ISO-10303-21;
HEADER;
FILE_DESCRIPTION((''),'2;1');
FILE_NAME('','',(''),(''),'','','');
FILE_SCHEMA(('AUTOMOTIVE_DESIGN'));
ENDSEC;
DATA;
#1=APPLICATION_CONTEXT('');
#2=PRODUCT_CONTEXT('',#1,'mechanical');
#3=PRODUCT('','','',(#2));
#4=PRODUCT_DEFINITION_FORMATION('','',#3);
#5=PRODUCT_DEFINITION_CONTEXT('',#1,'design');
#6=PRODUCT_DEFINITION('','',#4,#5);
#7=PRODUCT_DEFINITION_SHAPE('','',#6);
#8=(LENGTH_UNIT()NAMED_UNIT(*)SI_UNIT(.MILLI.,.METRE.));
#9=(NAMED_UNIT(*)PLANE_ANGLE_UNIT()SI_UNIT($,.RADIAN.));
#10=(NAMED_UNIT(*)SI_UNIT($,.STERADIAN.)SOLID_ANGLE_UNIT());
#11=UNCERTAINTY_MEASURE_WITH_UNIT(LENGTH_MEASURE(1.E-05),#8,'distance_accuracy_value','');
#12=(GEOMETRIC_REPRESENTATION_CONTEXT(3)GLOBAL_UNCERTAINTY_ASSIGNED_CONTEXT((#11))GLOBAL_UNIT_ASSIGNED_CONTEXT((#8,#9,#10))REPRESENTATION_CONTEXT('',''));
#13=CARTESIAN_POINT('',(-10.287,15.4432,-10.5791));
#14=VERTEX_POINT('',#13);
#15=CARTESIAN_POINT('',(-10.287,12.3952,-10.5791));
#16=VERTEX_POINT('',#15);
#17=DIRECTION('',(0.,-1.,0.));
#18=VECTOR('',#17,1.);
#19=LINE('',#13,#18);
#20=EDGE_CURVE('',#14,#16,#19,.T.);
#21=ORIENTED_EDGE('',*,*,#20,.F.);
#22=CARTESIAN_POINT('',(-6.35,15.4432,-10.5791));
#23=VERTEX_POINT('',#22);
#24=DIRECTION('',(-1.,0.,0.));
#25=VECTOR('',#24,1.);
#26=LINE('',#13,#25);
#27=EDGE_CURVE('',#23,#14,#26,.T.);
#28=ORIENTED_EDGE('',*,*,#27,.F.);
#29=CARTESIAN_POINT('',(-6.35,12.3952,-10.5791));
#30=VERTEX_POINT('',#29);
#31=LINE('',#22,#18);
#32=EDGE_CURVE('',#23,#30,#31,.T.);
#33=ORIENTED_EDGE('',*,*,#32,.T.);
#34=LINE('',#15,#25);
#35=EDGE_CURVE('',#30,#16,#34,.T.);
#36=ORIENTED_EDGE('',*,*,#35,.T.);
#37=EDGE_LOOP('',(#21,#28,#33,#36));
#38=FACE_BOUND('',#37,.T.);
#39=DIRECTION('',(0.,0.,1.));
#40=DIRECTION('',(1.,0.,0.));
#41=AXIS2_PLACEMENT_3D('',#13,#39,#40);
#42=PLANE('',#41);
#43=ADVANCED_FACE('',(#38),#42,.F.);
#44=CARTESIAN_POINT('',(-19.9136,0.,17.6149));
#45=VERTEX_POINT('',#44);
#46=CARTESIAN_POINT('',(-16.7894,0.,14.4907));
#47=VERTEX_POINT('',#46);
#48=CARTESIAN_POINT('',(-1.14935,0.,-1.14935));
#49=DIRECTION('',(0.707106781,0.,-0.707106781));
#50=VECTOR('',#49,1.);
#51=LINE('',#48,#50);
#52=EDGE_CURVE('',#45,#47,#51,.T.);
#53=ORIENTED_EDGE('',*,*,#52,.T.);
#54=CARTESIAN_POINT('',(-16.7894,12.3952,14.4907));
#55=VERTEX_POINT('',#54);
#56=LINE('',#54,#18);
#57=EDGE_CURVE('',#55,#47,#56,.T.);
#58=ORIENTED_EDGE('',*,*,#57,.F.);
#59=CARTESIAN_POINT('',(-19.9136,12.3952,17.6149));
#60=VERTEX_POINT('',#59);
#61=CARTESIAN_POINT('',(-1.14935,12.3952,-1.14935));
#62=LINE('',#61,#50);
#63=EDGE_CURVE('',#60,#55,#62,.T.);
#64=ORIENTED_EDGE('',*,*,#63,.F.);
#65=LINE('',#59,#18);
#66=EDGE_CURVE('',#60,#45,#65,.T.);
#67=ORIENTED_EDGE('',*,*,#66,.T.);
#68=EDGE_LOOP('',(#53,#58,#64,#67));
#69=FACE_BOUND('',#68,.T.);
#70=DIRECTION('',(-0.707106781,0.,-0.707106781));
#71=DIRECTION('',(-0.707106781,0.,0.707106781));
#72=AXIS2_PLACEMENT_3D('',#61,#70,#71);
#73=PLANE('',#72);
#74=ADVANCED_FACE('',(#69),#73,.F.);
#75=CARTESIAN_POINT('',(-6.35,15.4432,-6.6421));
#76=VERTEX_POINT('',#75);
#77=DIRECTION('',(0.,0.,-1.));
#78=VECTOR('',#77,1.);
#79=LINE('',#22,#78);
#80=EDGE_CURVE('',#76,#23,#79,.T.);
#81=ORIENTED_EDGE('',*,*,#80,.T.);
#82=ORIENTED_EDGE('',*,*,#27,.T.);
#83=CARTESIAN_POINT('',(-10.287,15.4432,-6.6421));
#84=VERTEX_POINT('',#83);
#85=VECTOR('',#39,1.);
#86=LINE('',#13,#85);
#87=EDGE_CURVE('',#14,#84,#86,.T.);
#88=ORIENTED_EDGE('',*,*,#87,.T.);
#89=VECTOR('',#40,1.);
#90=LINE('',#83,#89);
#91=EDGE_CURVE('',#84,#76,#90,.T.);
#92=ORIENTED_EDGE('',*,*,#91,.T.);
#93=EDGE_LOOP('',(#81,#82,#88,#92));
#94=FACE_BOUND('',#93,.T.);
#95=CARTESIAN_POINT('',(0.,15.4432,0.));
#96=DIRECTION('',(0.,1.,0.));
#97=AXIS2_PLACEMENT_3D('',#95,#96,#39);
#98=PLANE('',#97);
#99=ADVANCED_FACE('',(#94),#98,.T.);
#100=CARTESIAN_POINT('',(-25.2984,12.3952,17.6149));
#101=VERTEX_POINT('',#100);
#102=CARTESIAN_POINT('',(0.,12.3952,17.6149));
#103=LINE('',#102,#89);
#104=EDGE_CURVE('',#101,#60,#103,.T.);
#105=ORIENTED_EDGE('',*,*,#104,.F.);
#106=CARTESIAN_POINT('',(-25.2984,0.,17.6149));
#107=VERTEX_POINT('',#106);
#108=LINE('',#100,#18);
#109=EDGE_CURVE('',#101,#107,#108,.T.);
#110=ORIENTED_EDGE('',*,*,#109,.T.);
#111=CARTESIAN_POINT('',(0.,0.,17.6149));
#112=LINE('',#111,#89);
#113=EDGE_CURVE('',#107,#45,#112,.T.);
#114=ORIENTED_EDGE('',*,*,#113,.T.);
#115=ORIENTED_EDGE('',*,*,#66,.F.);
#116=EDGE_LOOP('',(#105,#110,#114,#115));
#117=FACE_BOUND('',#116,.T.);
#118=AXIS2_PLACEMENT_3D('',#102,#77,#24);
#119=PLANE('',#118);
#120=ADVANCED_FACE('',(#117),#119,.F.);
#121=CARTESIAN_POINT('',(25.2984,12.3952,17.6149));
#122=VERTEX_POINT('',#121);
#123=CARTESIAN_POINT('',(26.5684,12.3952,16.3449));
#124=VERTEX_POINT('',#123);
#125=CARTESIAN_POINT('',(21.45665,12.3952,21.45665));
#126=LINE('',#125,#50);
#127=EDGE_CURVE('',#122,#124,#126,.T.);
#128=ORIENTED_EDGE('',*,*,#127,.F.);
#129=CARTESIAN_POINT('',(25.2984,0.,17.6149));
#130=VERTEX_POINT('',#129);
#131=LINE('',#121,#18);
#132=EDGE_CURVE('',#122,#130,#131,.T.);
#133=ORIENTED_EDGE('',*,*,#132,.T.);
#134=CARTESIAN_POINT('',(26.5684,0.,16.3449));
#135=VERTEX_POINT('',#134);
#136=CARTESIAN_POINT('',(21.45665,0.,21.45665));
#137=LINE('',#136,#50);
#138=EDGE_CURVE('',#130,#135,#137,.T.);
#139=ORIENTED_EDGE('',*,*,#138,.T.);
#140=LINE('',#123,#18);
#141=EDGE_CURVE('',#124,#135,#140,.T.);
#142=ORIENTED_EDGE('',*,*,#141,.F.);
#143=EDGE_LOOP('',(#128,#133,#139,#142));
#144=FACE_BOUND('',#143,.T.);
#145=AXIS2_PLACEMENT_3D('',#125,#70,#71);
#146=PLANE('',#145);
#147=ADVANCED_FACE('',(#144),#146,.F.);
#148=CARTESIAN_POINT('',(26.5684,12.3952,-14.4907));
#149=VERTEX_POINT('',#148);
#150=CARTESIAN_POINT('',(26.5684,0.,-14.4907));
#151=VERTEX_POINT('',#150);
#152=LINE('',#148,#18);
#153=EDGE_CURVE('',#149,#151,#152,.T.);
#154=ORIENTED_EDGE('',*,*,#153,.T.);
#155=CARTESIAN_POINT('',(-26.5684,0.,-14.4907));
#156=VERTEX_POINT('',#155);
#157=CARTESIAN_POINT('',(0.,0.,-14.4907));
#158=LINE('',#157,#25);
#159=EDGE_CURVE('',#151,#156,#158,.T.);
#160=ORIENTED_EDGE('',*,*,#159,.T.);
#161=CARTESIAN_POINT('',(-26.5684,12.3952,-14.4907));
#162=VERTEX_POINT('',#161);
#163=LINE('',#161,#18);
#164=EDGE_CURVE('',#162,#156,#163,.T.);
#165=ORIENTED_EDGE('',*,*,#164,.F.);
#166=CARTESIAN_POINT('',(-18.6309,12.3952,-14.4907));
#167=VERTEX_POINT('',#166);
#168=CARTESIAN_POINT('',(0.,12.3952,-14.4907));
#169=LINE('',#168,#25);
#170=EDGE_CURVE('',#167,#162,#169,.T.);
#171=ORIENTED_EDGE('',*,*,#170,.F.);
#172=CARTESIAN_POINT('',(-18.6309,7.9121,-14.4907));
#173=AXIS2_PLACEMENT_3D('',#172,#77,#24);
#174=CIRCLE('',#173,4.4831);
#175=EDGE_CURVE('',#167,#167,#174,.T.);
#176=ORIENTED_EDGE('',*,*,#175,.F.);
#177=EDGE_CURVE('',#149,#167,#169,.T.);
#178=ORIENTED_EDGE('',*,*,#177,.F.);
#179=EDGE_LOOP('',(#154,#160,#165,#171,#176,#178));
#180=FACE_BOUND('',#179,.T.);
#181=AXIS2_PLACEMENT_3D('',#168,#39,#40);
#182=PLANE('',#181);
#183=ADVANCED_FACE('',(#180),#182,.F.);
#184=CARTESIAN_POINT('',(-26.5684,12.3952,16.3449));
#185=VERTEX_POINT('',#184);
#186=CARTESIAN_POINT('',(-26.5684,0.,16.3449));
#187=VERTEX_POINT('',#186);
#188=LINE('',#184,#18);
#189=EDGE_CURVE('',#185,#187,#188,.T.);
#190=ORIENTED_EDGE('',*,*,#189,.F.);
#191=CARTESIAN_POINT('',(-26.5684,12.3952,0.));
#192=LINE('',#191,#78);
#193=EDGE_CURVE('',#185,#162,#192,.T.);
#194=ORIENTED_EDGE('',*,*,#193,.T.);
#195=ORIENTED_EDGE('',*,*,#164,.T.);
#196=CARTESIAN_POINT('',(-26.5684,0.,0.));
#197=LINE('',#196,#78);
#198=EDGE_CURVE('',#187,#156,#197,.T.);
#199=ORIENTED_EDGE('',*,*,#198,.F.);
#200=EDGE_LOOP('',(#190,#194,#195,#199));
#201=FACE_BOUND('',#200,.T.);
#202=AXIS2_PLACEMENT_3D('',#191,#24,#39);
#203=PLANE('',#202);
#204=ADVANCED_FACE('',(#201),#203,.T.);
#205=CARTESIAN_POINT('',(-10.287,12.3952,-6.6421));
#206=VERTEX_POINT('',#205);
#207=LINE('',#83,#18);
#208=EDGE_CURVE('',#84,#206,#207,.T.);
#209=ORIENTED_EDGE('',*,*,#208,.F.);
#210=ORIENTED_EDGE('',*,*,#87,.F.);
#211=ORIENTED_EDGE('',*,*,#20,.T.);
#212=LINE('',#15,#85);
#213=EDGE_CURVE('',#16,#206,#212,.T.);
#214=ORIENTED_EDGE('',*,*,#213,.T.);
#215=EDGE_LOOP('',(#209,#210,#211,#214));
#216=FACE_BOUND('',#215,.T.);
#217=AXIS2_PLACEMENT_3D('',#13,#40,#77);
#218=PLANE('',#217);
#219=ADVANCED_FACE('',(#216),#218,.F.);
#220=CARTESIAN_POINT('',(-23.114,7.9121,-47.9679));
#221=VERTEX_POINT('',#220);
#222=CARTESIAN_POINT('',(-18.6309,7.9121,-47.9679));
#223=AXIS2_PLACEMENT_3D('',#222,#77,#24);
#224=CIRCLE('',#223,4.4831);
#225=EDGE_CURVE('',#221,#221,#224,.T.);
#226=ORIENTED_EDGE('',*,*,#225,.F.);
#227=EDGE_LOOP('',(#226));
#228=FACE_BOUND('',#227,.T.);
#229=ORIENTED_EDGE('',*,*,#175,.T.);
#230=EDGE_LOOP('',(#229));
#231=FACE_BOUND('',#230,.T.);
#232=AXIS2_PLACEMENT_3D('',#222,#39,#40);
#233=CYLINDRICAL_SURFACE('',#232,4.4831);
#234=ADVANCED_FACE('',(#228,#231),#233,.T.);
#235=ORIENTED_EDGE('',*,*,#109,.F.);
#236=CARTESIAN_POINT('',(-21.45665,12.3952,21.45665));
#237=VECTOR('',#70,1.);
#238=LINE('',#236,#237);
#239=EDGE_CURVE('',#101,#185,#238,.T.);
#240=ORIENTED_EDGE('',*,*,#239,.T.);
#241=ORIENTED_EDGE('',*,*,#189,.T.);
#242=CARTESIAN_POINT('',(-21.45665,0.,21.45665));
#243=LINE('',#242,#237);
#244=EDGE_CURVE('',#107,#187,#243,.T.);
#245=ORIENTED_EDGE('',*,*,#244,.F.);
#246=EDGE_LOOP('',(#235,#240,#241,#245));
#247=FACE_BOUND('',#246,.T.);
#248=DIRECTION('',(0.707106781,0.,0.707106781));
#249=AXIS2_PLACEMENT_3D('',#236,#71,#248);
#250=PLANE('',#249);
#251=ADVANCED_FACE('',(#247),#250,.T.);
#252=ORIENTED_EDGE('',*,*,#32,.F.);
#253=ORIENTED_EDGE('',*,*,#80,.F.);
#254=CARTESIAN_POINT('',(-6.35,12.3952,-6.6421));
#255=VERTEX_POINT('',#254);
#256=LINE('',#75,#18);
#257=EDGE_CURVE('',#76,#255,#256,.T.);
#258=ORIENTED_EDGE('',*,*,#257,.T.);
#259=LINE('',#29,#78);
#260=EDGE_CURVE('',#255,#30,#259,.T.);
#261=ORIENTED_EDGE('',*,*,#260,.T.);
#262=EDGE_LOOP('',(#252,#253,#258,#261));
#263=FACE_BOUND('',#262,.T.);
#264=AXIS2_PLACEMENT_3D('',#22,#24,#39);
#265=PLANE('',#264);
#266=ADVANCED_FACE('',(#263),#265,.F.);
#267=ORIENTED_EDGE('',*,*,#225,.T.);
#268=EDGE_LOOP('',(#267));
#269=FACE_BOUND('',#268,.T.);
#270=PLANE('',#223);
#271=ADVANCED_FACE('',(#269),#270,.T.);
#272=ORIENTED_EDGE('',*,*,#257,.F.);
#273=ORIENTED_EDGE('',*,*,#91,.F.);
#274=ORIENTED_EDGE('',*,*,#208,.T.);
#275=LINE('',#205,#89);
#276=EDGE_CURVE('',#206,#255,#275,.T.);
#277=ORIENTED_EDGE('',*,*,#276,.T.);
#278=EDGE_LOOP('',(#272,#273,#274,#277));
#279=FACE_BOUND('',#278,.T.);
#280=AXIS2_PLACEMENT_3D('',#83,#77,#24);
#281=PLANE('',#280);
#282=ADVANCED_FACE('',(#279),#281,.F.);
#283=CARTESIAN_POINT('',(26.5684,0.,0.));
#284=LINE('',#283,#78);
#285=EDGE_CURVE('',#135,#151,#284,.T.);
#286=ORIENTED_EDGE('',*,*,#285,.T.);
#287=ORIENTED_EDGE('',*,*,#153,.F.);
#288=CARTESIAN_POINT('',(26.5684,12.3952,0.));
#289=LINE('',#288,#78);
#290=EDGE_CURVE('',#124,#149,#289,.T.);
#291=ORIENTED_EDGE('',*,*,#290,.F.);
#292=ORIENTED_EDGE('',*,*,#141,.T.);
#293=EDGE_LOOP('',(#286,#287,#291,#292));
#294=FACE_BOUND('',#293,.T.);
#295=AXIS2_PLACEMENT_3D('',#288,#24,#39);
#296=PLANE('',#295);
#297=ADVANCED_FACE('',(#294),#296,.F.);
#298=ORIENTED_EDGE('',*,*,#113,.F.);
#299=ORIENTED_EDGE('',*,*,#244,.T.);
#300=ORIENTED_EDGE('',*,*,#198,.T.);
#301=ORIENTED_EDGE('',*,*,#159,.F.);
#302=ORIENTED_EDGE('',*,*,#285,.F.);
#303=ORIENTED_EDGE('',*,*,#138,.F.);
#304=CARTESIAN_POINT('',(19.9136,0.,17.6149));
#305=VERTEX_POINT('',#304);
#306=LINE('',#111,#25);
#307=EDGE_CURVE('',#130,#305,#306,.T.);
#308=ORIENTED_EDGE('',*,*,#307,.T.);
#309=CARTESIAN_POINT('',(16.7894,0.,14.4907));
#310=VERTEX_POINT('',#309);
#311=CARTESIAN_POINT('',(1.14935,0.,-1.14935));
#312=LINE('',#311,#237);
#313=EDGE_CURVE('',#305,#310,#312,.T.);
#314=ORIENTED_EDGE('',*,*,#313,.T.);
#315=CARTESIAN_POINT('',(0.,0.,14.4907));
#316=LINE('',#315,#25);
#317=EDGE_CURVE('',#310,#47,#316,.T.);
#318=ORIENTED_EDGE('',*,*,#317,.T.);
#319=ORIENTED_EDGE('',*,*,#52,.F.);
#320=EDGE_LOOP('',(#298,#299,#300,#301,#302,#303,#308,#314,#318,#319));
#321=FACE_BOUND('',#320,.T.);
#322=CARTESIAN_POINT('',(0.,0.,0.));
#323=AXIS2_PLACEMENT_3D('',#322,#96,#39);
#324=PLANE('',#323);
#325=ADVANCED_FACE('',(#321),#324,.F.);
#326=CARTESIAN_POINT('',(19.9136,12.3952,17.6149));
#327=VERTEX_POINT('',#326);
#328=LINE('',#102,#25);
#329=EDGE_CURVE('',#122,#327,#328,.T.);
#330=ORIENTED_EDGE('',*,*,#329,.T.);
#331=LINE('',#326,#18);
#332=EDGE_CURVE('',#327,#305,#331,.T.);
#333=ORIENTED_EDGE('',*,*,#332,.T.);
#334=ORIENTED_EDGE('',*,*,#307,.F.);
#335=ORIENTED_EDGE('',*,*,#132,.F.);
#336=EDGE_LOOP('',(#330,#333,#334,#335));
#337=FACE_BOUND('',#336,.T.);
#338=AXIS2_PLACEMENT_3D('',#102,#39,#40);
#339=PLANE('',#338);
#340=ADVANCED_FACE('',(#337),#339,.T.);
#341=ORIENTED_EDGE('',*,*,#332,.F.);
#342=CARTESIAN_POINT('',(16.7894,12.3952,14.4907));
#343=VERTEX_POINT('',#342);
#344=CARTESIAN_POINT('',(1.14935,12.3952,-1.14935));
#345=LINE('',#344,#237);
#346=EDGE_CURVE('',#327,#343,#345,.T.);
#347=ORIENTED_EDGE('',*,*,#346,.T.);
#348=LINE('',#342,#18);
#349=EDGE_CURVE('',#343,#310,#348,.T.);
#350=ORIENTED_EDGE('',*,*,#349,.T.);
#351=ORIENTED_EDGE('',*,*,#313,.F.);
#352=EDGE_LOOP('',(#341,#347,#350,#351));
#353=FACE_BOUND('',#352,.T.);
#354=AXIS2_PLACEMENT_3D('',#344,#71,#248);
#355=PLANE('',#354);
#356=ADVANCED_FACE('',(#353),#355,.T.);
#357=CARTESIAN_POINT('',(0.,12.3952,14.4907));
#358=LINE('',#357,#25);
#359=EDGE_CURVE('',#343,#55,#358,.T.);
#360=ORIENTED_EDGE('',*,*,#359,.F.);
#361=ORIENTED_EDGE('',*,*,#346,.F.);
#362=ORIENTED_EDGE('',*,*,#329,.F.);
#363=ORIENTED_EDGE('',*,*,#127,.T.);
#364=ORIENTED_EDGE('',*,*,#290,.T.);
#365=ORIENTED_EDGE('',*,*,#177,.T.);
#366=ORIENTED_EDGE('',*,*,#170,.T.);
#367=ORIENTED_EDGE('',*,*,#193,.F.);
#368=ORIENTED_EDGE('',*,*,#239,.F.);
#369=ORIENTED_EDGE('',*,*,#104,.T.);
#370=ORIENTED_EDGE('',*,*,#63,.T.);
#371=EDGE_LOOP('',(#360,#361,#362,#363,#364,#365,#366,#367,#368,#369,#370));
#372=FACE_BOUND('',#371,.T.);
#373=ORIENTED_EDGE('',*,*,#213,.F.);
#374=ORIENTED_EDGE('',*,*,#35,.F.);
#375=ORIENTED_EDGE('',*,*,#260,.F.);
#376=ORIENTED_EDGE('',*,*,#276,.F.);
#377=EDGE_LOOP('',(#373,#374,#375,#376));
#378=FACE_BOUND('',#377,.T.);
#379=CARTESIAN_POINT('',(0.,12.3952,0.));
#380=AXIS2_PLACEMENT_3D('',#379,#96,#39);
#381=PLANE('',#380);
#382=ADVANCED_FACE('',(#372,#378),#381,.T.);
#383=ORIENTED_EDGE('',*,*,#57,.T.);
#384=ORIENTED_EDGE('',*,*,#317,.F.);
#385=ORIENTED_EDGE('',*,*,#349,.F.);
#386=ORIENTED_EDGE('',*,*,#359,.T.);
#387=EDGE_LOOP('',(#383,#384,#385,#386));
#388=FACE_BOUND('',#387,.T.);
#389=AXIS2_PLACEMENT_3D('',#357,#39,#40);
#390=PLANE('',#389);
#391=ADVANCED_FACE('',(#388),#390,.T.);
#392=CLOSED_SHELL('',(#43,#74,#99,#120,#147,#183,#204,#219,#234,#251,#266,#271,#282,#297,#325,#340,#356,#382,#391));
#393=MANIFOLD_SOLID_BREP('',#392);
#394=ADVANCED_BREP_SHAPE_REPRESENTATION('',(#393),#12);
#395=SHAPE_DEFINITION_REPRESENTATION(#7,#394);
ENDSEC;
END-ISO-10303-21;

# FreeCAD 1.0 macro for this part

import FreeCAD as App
import Part
import Sketcher
from FreeCAD import Vector
Q = App.Units.Quantity

doc = App.newDocument("Part")
params = doc.addObject("Spreadsheet::Sheet", "Params")
for row, (alias, value) in enumerate([
    ("sketch1_width", "0.212 in"),
    ("sketch1_width2", "1.322 in"),
    ("sketch1_width3", "2.092 in"),
    ("sketch1_height", "1.214 in"),
    ("pad1_length", "0.488 in"),
    ("sketch2_diameter", "0.353 in"),
    ("pad2_length", "1.318 in"),
    ("sketch3_width", "0.155 in"),
    ("pad3_length", "0.12 in"),
], start=1):
    params.set(f"A{row}", alias)
    params.set(f"B{row}", "=" + value)
    params.setAlias(f"B{row}", alias)

body = doc.addObject("PartDesign::Body", "Body")

sketch1 = body.newObject("Sketcher::SketchObject", "Sketch")
sketch1.AttachmentSupport = (doc.getObject("XZ_Plane"), [""])
sketch1.MapMode = "FlatFace"
sketch1.addGeometry([
    Part.LineSegment(Vector(-26.6, -14.5, 0), Vector(-26.6, 16.3, 0)),
    Part.LineSegment(Vector(-26.6, 16.3, 0), Vector(-25.3, 17.6, 0)),
    Part.LineSegment(Vector(-25.3, 17.6, 0), Vector(-19.9, 17.6, 0)),
    Part.LineSegment(Vector(-19.9, 17.6, 0), Vector(-16.8, 14.5, 0)),
    Part.LineSegment(Vector(-16.8, 14.5, 0), Vector(16.8, 14.5, 0)),
    Part.LineSegment(Vector(16.8, 14.5, 0), Vector(19.9, 17.6, 0)),
    Part.LineSegment(Vector(19.9, 17.6, 0), Vector(25.3, 17.6, 0)),
    Part.LineSegment(Vector(25.3, 17.6, 0), Vector(26.6, 16.3, 0)),
    Part.LineSegment(Vector(26.6, 16.3, 0), Vector(26.6, -14.5, 0)),
    Part.LineSegment(Vector(26.6, -14.5, 0), Vector(-26.6, -14.5, 0)),
], False)
sketch1.addConstraint([
    Sketcher.Constraint("Coincident", 0, 2, 1, 1),
    Sketcher.Constraint("Coincident", 1, 2, 2, 1),
    Sketcher.Constraint("Coincident", 2, 2, 3, 1),
    Sketcher.Constraint("Coincident", 3, 2, 4, 1),
    Sketcher.Constraint("Coincident", 4, 2, 5, 1),
    Sketcher.Constraint("Coincident", 5, 2, 6, 1),
    Sketcher.Constraint("Coincident", 6, 2, 7, 1),
    Sketcher.Constraint("Coincident", 7, 2, 8, 1),
    Sketcher.Constraint("Coincident", 8, 2, 9, 1),
    Sketcher.Constraint("Coincident", 9, 2, 0, 1),
    Sketcher.Constraint("Vertical", 0),
    Sketcher.Constraint("Horizontal", 2),
    Sketcher.Constraint("Horizontal", 4),
    Sketcher.Constraint("Horizontal", 6),
    Sketcher.Constraint("Vertical", 8),
    Sketcher.Constraint("Horizontal", 9),
    Sketcher.Constraint("Symmetric", 2, 2, 5, 2, -2),
    Sketcher.Constraint("Symmetric", 0, 2, 7, 2, -2),
    Sketcher.Constraint("Perpendicular", 1, 3),
    Sketcher.Constraint("Perpendicular", 3, 5),
    Sketcher.Constraint("Perpendicular", 5, 7),
    Sketcher.Constraint("Equal", 2, 6),
    Sketcher.Constraint("DistanceX", 2, 1, 2, 2, Q("0.212 in")),
    Sketcher.Constraint("DistanceX", 4, 1, 4, 2, Q("1.322 in")),
    Sketcher.Constraint("DistanceX", 9, 2, 9, 1, Q("2.092 in")),
    Sketcher.Constraint("DistanceY", 0, 1, 0, 2, Q("1.214 in")),
    Sketcher.Constraint("DistanceX", 0, 2, 1, 2, Q("0.05 in")),
    Sketcher.Constraint("DistanceY", -1, 1, 0, 2, Q("0.6435 in")),
])
sketch1.setExpression("Constraints[22]", "Params.sketch1_width")
sketch1.setExpression("Constraints[23]", "Params.sketch1_width2")
sketch1.setExpression("Constraints[24]", "Params.sketch1_width3")
sketch1.setExpression("Constraints[25]", "Params.sketch1_height")
pad1 = body.newObject("PartDesign::Pad", "Pad")
pad1.Profile = sketch1
pad1.setExpression("Length", "Params.pad1_length")
pad1.Reversed = True

sketch2 = body.newObject("Sketcher::SketchObject", "Sketch001")
sketch2.AttachmentSupport = (doc.getObject("XY_Plane"), [""])
sketch2.MapMode = "FlatFace"
sketch2.AttachmentOffset = App.Placement(Vector(0, 0, -0.5705 * 25.4), App.Rotation())
sketch2.addGeometry(Part.Circle(Vector(-18.6, 7.9, 0), Vector(0, 0, 1), 4.5), False)
sketch2.addConstraint([
    Sketcher.Constraint("Diameter", 0, Q("0.353 in")),
    Sketcher.Constraint("DistanceX", 0, 3, -1, 1, Q("0.7335 in")),
    Sketcher.Constraint("DistanceY", -1, 1, 0, 3, Q("0.3115 in")),
])
sketch2.setExpression("Constraints[0]", "Params.sketch2_diameter")
pad2 = body.newObject("PartDesign::Pad", "Pad001")
pad2.Profile = sketch2
pad2.setExpression("Length", "Params.pad2_length")
pad2.Reversed = True

sketch3 = body.newObject("Sketcher::SketchObject", "Sketch002")
sketch3.AttachmentSupport = (doc.getObject("XZ_Plane"), [""])
sketch3.MapMode = "FlatFace"
sketch3.AttachmentOffset = App.Placement(Vector(0, 0, -0.488 * 25.4), App.Rotation())
sketch3.addGeometry([
    Part.LineSegment(Vector(-10.3, -10.6, 0), Vector(-10.3, -6.6, 0)),
    Part.LineSegment(Vector(-10.3, -6.6, 0), Vector(-6.3, -6.6, 0)),
    Part.LineSegment(Vector(-6.3, -6.6, 0), Vector(-6.3, -10.6, 0)),
    Part.LineSegment(Vector(-6.3, -10.6, 0), Vector(-10.3, -10.6, 0)),
], False)
sketch3.addConstraint([
    Sketcher.Constraint("Coincident", 0, 2, 1, 1),
    Sketcher.Constraint("Coincident", 1, 2, 2, 1),
    Sketcher.Constraint("Coincident", 2, 2, 3, 1),
    Sketcher.Constraint("Coincident", 3, 2, 0, 1),
    Sketcher.Constraint("Vertical", 0),
    Sketcher.Constraint("Horizontal", 1),
    Sketcher.Constraint("Vertical", 2),
    Sketcher.Constraint("Horizontal", 3),
    Sketcher.Constraint("Equal", 3, 0),
    Sketcher.Constraint("DistanceX", 1, 1, 1, 2, Q("0.155 in")),
    Sketcher.Constraint("DistanceX", 1, 2, -1, 1, Q("0.25 in")),
    Sketcher.Constraint("DistanceY", 0, 2, -1, 1, Q("0.2615 in")),
])
sketch3.setExpression("Constraints[9]", "Params.sketch3_width")
pad3 = body.newObject("PartDesign::Pad", "Pad002")
pad3.Profile = sketch3
pad3.setExpression("Length", "Params.pad3_length")
pad3.Reversed = True

doc.recompute()
